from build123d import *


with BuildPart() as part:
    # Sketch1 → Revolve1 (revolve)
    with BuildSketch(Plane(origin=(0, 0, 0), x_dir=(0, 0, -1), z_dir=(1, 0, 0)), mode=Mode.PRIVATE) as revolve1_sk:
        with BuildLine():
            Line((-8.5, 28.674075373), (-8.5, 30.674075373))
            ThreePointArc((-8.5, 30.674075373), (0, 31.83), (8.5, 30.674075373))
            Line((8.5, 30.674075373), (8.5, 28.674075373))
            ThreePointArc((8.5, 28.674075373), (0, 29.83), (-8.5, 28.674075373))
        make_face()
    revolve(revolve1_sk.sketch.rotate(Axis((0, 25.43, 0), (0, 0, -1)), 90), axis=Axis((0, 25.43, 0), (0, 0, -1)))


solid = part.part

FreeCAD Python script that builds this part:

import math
import FreeCAD as App
import Part
import Sketcher

V = App.Vector

doc = App.newDocument("Part")
body = doc.addObject("PartDesign::Body", "Body")

sketch1 = doc.addObject("Sketcher::SketchObject", "Sketch")
body.addObject(sketch1)
sketch1.AttachmentSupport = (doc.YZ_Plane, [""])
sketch1.MapMode = "FlatFace"
sketch1.addGeometry(Part.LineSegment(V(30.7, 8.5, 0), V(28.7, 8.5, 0)), False)
sketch1.addGeometry(Part.ArcOfCircle(Part.Circle(V(-2, 0, 0), V(0, 0, 1), 31.8), math.radians(-15), math.radians(15)), False)
sketch1.addGeometry(Part.LineSegment(V(28.7, -8.5, 0), V(30.7, -8.5, 0)), False)
sketch1.addGeometry(Part.ArcOfCircle(Part.Circle(V(0, 0, 0), V(0, 0, 1), 31.8), math.radians(-15), math.radians(15)), False)
sketch1.addGeometry(Part.LineSegment(V(25.4, 8.5, 0), V(25.4, -8.5, 0)), True)
sketch1.addConstraint(Sketcher.Constraint("Coincident", 0, 2, 1, 2))
sketch1.addConstraint(Sketcher.Constraint("Coincident", 1, 1, 2, 1))
sketch1.addConstraint(Sketcher.Constraint("Coincident", 2, 2, 3, 1))
sketch1.addConstraint(Sketcher.Constraint("Coincident", 3, 2, 0, 1))
sketch1.addConstraint(Sketcher.Constraint("Horizontal", 0))
sketch1.addConstraint(Sketcher.Constraint("Horizontal", 2))
sketch1.addConstraint(Sketcher.Constraint("Vertical", 4))
sketch1.addConstraint(Sketcher.Constraint("Coincident", 3, 3, -1, 1))
sketch1.addConstraint(Sketcher.Constraint("Equal", 1, 3))
sketch1.addConstraint(Sketcher.Constraint("Symmetric", 0, 2, 1, 1, -1))
sketch1.addConstraint(Sketcher.Constraint("Horizontal", 3, 2, 4, 1))
sketch1.addConstraint(Sketcher.Constraint("Horizontal", 2, 2, 4, 2))
sketch1.addConstraint(Sketcher.Constraint("DistanceX", 0, 2, 0, 1, 2.0))
sketch1.addConstraint(Sketcher.Constraint("DistanceY", 4, 2, 4, 1, 17.0))
sketch1.addConstraint(Sketcher.Constraint("Radius", 1, 31.83))
sketch1.addConstraint(Sketcher.Constraint("DistanceX", -1, 1, 4, 1, 25.43))
revolution = doc.addObject("PartDesign::Revolution", "Revolution")
body.addObject(revolution)
revolution.Profile = sketch1
revolution.ReferenceAxis = (sketch1, ["Axis0"])
revolution.Angle = 360

doc.recompute()
